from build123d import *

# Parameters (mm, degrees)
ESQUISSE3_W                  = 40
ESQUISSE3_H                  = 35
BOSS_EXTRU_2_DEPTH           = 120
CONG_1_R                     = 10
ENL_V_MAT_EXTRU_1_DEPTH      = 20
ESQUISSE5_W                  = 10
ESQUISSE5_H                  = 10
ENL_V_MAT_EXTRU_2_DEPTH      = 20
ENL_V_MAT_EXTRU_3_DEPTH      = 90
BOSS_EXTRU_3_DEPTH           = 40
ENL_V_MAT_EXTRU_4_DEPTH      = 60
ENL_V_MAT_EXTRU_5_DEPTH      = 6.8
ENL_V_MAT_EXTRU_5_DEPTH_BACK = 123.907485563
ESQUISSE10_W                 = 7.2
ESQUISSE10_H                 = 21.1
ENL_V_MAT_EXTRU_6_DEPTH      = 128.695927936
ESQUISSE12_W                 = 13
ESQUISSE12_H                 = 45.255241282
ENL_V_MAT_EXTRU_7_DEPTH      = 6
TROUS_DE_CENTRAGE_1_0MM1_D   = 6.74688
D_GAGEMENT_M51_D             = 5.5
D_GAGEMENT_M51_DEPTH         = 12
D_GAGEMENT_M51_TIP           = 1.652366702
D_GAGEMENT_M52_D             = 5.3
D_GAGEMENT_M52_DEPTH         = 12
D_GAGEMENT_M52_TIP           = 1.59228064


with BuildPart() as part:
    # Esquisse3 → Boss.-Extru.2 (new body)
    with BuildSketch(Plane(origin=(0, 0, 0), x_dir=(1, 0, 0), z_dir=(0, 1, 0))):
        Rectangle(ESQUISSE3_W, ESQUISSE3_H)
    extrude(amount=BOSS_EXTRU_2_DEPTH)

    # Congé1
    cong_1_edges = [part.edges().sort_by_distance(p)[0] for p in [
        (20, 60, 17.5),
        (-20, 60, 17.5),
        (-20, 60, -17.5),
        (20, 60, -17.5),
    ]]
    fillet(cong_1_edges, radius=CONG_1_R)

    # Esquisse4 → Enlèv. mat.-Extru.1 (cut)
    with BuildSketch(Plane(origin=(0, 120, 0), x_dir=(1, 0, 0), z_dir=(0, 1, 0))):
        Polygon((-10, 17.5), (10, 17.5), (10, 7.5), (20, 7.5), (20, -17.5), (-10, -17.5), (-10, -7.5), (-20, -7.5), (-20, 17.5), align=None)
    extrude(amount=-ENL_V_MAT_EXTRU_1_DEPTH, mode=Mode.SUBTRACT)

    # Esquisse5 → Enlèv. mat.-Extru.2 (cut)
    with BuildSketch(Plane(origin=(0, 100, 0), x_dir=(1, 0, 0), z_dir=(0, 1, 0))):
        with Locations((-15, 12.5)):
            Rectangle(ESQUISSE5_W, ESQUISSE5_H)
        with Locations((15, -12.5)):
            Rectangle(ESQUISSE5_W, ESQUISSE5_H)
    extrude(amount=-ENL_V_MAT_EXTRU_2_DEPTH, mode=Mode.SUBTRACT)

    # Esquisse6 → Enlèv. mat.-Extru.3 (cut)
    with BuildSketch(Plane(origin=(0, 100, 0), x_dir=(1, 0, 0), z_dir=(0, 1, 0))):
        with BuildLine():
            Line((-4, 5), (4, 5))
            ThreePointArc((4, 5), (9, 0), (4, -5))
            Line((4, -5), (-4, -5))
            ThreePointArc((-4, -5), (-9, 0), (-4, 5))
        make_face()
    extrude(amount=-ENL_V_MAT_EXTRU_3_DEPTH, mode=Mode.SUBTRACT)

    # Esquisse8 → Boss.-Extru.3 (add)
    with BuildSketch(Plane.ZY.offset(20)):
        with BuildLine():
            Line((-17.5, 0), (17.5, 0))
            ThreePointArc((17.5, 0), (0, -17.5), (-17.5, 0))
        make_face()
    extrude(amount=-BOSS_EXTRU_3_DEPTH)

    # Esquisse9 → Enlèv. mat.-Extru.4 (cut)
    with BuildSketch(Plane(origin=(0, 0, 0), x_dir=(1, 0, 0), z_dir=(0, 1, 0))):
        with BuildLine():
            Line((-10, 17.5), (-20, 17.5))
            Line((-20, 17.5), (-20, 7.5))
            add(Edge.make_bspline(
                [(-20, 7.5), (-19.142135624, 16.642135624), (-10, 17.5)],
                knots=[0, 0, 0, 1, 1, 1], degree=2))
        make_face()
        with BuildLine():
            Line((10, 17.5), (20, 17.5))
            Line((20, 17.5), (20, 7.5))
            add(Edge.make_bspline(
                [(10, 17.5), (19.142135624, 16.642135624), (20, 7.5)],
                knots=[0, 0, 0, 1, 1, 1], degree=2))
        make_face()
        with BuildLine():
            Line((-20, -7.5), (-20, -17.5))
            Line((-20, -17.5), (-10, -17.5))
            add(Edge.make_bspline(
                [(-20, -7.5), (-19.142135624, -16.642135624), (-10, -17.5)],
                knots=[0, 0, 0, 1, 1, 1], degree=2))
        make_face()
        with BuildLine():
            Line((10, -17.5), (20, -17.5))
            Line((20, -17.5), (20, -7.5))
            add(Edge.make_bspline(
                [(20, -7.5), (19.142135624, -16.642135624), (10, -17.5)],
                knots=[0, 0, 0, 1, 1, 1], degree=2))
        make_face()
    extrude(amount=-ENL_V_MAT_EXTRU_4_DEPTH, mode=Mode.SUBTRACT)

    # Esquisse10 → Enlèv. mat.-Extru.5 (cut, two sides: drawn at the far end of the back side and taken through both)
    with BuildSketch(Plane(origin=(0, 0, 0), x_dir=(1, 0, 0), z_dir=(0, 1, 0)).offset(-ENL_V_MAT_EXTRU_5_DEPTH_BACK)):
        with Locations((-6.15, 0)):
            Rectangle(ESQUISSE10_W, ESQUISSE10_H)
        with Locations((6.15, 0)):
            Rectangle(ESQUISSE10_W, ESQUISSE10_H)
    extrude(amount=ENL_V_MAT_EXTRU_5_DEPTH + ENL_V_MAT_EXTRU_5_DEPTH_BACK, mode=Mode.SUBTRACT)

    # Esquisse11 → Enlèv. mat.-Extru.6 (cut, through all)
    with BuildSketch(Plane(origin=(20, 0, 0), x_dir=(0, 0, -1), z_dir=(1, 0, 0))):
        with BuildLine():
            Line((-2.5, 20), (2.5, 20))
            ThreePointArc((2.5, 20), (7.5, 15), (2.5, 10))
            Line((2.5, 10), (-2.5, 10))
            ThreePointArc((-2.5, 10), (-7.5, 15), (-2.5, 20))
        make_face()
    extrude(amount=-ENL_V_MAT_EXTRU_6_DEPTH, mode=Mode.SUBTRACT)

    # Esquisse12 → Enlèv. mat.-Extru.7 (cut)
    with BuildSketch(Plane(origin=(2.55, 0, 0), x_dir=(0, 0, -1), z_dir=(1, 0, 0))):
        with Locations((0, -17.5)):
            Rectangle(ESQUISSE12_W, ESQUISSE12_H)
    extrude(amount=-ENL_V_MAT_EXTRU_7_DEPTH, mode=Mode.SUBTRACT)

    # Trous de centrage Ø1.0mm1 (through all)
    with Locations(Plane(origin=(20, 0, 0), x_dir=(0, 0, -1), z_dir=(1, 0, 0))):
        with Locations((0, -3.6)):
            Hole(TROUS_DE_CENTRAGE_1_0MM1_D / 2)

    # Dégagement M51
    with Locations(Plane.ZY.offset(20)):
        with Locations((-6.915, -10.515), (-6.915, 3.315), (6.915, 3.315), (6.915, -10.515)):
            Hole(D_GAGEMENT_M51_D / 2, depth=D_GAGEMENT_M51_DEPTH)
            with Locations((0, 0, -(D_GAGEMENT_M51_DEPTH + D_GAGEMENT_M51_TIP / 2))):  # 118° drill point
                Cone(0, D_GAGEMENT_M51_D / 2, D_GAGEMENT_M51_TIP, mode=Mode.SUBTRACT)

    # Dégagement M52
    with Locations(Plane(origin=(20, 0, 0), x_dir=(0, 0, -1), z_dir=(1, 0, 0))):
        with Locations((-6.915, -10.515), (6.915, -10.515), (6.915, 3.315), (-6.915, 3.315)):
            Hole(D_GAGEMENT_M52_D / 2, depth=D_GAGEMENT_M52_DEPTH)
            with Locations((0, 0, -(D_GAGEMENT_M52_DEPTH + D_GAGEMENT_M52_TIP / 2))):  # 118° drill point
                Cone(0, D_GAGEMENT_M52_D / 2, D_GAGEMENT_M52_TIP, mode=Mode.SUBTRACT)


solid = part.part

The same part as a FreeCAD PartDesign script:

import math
import FreeCAD as App
import Part
import Sketcher
from FreeCAD import Vector
Q = App.Units.Quantity


def edges_at(feature, points):
    """Names of the edges that pass closest to the given points."""
    edges = feature.Shape.Edges
    near = lambda p: min(range(len(edges)), key=lambda i: edges[i].distToShape(Part.Vertex(*p))[0])
    return sorted({f"Edge{near(p) + 1}" for p in points})


def add_polygon(sketch, points):
    """Adds a closed chain of lines whose ends are joined by coincident constraints."""
    first, n = sketch.GeometryCount, len(points)
    for a, b in zip(points, points[1:] + points[:1]):
        sketch.addGeometry(Part.LineSegment(App.Vector(*a, 0), App.Vector(*b, 0)), False)
    for i in range(n):
        sketch.addConstraint(Sketcher.Constraint("Coincident", first + i, 2, first + (i + 1) % n, 1))

doc = App.newDocument("Part")
body = doc.addObject("PartDesign::Body", "Body")

# Sketch on XZ plane
sketch1 = body.newObject("Sketcher::SketchObject", "Sketch")
sketch1.AttachmentSupport = (doc.getObject("XZ_Plane"), [""])
sketch1.MapMode = "FlatFace"
add_polygon(sketch1, [(-20, -18), (-20, 18), (20, 18), (20, -18)])  # lines 0-3
sketch1.addConstraint(Sketcher.Constraint("Vertical", 0))
sketch1.addConstraint(Sketcher.Constraint("Horizontal", 1))
sketch1.addConstraint(Sketcher.Constraint("Vertical", 2))
sketch1.addConstraint(Sketcher.Constraint("Horizontal", 3))
sketch1.addConstraint(Sketcher.Constraint("Symmetric", 0, 2, 2, 2, -1, 1))
sketch1.addConstraint(Sketcher.Constraint("DistanceX", 1, 1, 1, 2, Q("40 mm")))
sketch1.addConstraint(Sketcher.Constraint("DistanceY", 0, 1, 0, 2, Q("35 mm")))
pad1 = body.newObject("PartDesign::Pad", "Pad")
pad1.Profile = sketch1
pad1.Length = 120
pad1.Reversed = True
doc.recompute()

fillet = body.newObject("PartDesign::Fillet", "Fillet")
fillet.Base = (pad1, edges_at(pad1, [
    (20, 60, 17.5),
    (-20, 60, 17.5),
    (-20, 60, -17.5),
    (20, 60, -17.5),
]))
fillet.Radius = 10

# Sketch on XZ plane
sketch2 = body.newObject("Sketcher::SketchObject", "Sketch001")
sketch2.AttachmentSupport = (doc.getObject("XZ_Plane"), [""])
sketch2.MapMode = "FlatFace"
sketch2.AttachmentOffset = App.Placement(Vector(0, 0, -120), App.Rotation())
add_polygon(sketch2, [(10, -18), (-20, -18), (-20, 8), (-10, 8), (-10, 18), (20, 18), (20, -8), (10, -8)])  # lines 0-7
sketch2.addConstraint(Sketcher.Constraint("Horizontal", 0))
sketch2.addConstraint(Sketcher.Constraint("Vertical", 1))
sketch2.addConstraint(Sketcher.Constraint("Horizontal", 2))
sketch2.addConstraint(Sketcher.Constraint("Vertical", 3))
sketch2.addConstraint(Sketcher.Constraint("Horizontal", 4))
sketch2.addConstraint(Sketcher.Constraint("Vertical", 5))
sketch2.addConstraint(Sketcher.Constraint("Horizontal", 6))
sketch2.addConstraint(Sketcher.Constraint("Vertical", 7))
sketch2.addConstraint(Sketcher.Constraint("Symmetric", 0, 2, 4, 2, -1, 1))
sketch2.addConstraint(Sketcher.Constraint("Symmetric", 2, 2, 6, 2, -1, 1))
sketch2.addConstraint(Sketcher.Constraint("Equal", 6, 3))
sketch2.addConstraint(Sketcher.Constraint("DistanceX", 0, 2, 0, 1, Q("30 mm")))
sketch2.addConstraint(Sketcher.Constraint("DistanceX", 2, 1, 2, 2, Q("10 mm")))
sketch2.addConstraint(Sketcher.Constraint("DistanceY", 1, 1, 1, 2, Q("25 mm")))
pocket1 = body.newObject("PartDesign::Pocket", "Pocket")
pocket1.Profile = sketch2
pocket1.Length = 20
pocket1.Reversed = True

# Sketch on XZ plane
sketch3 = body.newObject("Sketcher::SketchObject", "Sketch002")
sketch3.AttachmentSupport = (doc.getObject("XZ_Plane"), [""])
sketch3.MapMode = "FlatFace"
sketch3.AttachmentOffset = App.Placement(Vector(0, 0, -100), App.Rotation())
add_polygon(sketch3, [(-20, -18), (-20, -8), (-10, -8), (-10, -18)])  # lines 0-3
add_polygon(sketch3, [(10, 8), (10, 18), (20, 18), (20, 8)])  # lines 4-7
sketch3.addConstraint(Sketcher.Constraint("Vertical", 0))
sketch3.addConstraint(Sketcher.Constraint("Horizontal", 1))
sketch3.addConstraint(Sketcher.Constraint("Vertical", 2))
sketch3.addConstraint(Sketcher.Constraint("Horizontal", 3))
sketch3.addConstraint(Sketcher.Constraint("Vertical", 4))
sketch3.addConstraint(Sketcher.Constraint("Horizontal", 5))
sketch3.addConstraint(Sketcher.Constraint("Vertical", 6))
sketch3.addConstraint(Sketcher.Constraint("Horizontal", 7))
sketch3.addConstraint(Sketcher.Constraint("Symmetric", 2, 2, 4, 2, -1, 1))
sketch3.addConstraint(Sketcher.Constraint("Symmetric", 0, 2, 6, 2, -1, 1))
sketch3.addConstraint(Sketcher.Constraint("Equal", 7, 0))
sketch3.addConstraint(Sketcher.Constraint("DistanceX", 1, 1, 1, 2, Q("10 mm")))
sketch3.addConstraint(Sketcher.Constraint("DistanceX", 0, 2, -1, 1, Q("20 mm")))
sketch3.addConstraint(Sketcher.Constraint("DistanceY", 1, 2, 4, 2, Q("25 mm")))
pocket2 = body.newObject("PartDesign::Pocket", "Pocket001")
pocket2.Profile = sketch3
pocket2.Length = 20
pocket2.Reversed = True

# Sketch on XZ plane
sketch4 = body.newObject("Sketcher::SketchObject", "Sketch003")
sketch4.AttachmentSupport = (doc.getObject("XZ_Plane"), [""])
sketch4.MapMode = "FlatFace"
sketch4.AttachmentOffset = App.Placement(Vector(0, 0, -100), App.Rotation())
sketch4.addGeometry(Part.LineSegment(Vector(4, -5, 0), Vector(-4, -5, 0)), False)
sketch4.addGeometry(Part.ArcOfCircle(Part.Circle(Vector(-4, 0, 0), Vector(0, 0, 1), 5), math.radians(90), math.radians(270)), False)
sketch4.addGeometry(Part.LineSegment(Vector(-4, 5, 0), Vector(4, 5, 0)), False)
sketch4.addGeometry(Part.ArcOfCircle(Part.Circle(Vector(4, 0, 0), Vector(0, 0, 1), 5), math.radians(-90), math.radians(90)), False)
sketch4.addConstraint(Sketcher.Constraint("Tangent", 0, 2, 1, 2))
sketch4.addConstraint(Sketcher.Constraint("Tangent", 1, 1, 2, 1))
sketch4.addConstraint(Sketcher.Constraint("Tangent", 2, 2, 3, 2))
sketch4.addConstraint(Sketcher.Constraint("Tangent", 3, 1, 0, 1))
sketch4.addConstraint(Sketcher.Constraint("Horizontal", 0))
sketch4.addConstraint(Sketcher.Constraint("Horizontal", 2))
sketch4.addConstraint(Sketcher.Constraint("Symmetric", 1, 3, 3, 3, -1, 1))
sketch4.addConstraint(Sketcher.Constraint("Radius", 1, Q("5 mm")))
sketch4.addConstraint(Sketcher.Constraint("DistanceX", 0, 2, 0, 1, Q("8 mm")))
pocket3 = body.newObject("PartDesign::Pocket", "Pocket002")
pocket3.Profile = sketch4
pocket3.Length = 90
pocket3.Reversed = True

# Sketch on YZ plane
sketch5 = body.newObject("Sketcher::SketchObject", "Sketch004")
sketch5.AttachmentSupport = (doc.getObject("YZ_Plane"), [""])
sketch5.MapMode = "FlatFace"
sketch5.AttachmentOffset = App.Placement(Vector(0, 0, -20), App.Rotation())
sketch5.addGeometry(Part.LineSegment(Vector(0, 18, 0), Vector(0, -18, 0)), False)
sketch5.addGeometry(Part.ArcOfCircle(Part.Circle(Vector(0, 0, 0), Vector(0, 0, 1), 18), math.radians(90), math.radians(270)), False)
sketch5.addConstraint(Sketcher.Constraint("Coincident", 0, 1, 1, 1))
sketch5.addConstraint(Sketcher.Constraint("Coincident", 1, 2, 0, 2))
sketch5.addConstraint(Sketcher.Constraint("Vertical", 0))
sketch5.addConstraint(Sketcher.Constraint("Coincident", 1, 3, -1, 1))
sketch5.addConstraint(Sketcher.Constraint("PointOnObject", 0, 1, -2))
sketch5.addConstraint(Sketcher.Constraint("Radius", 1, Q("17.5 mm")))
pad2 = body.newObject("PartDesign::Pad", "Pad001")
pad2.Profile = sketch5
pad2.Length = 40

# Sketch on XZ plane
sketch6 = body.newObject("Sketcher::SketchObject", "Sketch005")
sketch6.AttachmentSupport = (doc.getObject("XZ_Plane"), [""])
sketch6.MapMode = "FlatFace"
sketch6.addGeometry(Part.LineSegment(Vector(-10, -17.5, 0), Vector(-20, -17.5, 0)), False)
sketch6.addGeometry(Part.LineSegment(Vector(-20, -17.5, 0), Vector(-20, -7.5, 0)), False)
sketch6.addGeometry(Part.BSplineCurve([Vector(-20, -7.5, 0), Vector(-19.142136, -16.642136, 0), Vector(-10, -17.5, 0)], [3, 3], [0, 1], False, 2, [1, 1, 1], False), False)
sketch6.addGeometry(Part.LineSegment(Vector(20, -17.5, 0), Vector(10, -17.5, 0)), False)
sketch6.addGeometry(Part.BSplineCurve([Vector(10, -17.5, 0), Vector(19.142136, -16.642136, 0), Vector(20, -7.5, 0)], [3, 3], [0, 1], False, 2, [1, 1, 1], False), False)
sketch6.addGeometry(Part.LineSegment(Vector(20, -7.5, 0), Vector(20, -17.5, 0)), False)
sketch6.addGeometry(Part.LineSegment(Vector(-20, 7.5, 0), Vector(-20, 17.5, 0)), False)
sketch6.addGeometry(Part.LineSegment(Vector(-20, 17.5, 0), Vector(-10, 17.5, 0)), False)
sketch6.addGeometry(Part.BSplineCurve([Vector(-20, 7.5, 0), Vector(-19.142136, 16.642136, 0), Vector(-10, 17.5, 0)], [3, 3], [0, 1], False, 2, [1, 1, 1], False), False)
sketch6.addGeometry(Part.LineSegment(Vector(10, 17.5, 0), Vector(20, 17.5, 0)), False)
sketch6.addGeometry(Part.LineSegment(Vector(20, 17.5, 0), Vector(20, 7.5, 0)), False)
sketch6.addGeometry(Part.BSplineCurve([Vector(20, 7.5, 0), Vector(19.142136, 16.642136, 0), Vector(10, 17.5, 0)], [3, 3], [0, 1], False, 2, [1, 1, 1], False), False)
sketch6.addConstraint(Sketcher.Constraint("Block", 2))
sketch6.addConstraint(Sketcher.Constraint("Block", 4))
sketch6.addConstraint(Sketcher.Constraint("Block", 8))
sketch6.addConstraint(Sketcher.Constraint("Block", 11))
sketch6.addConstraint(Sketcher.Constraint("Coincident", 0, 2, 1, 1))
sketch6.addConstraint(Sketcher.Constraint("Coincident", 1, 2, 2, 1))
sketch6.addConstraint(Sketcher.Constraint("Coincident", 2, 2, 0, 1))
sketch6.addConstraint(Sketcher.Constraint("Coincident", 3, 2, 4, 1))
sketch6.addConstraint(Sketcher.Constraint("Coincident", 4, 2, 5, 1))
sketch6.addConstraint(Sketcher.Constraint("Coincident", 5, 2, 3, 1))
sketch6.addConstraint(Sketcher.Constraint("Coincident", 6, 2, 7, 1))
sketch6.addConstraint(Sketcher.Constraint("Coincident", 7, 2, 8, 2))
sketch6.addConstraint(Sketcher.Constraint("Coincident", 8, 1, 6, 1))
sketch6.addConstraint(Sketcher.Constraint("Coincident", 9, 2, 10, 1))
sketch6.addConstraint(Sketcher.Constraint("Coincident", 10, 2, 11, 1))
sketch6.addConstraint(Sketcher.Constraint("Coincident", 11, 2, 9, 1))
sketch6.addConstraint(Sketcher.Constraint("Horizontal", 0))
sketch6.addConstraint(Sketcher.Constraint("Vertical", 1))
sketch6.addConstraint(Sketcher.Constraint("Horizontal", 3))
sketch6.addConstraint(Sketcher.Constraint("Vertical", 5))
sketch6.addConstraint(Sketcher.Constraint("Vertical", 6))
sketch6.addConstraint(Sketcher.Constraint("Horizontal", 7))
sketch6.addConstraint(Sketcher.Constraint("Horizontal", 9))
sketch6.addConstraint(Sketcher.Constraint("Vertical", 10))
pocket4 = body.newObject("PartDesign::Pocket", "Pocket003")
pocket4.Profile = sketch6
pocket4.Length = 60
pocket4.Reversed = True

# Sketch on XZ plane
sketch7 = body.newObject("Sketcher::SketchObject", "Sketch006")
sketch7.AttachmentSupport = (doc.getObject("XZ_Plane"), [""])
sketch7.MapMode = "FlatFace"
add_polygon(sketch7, [(-10, -11), (-10, 11), (-3, 11), (-3, -11)])  # lines 0-3
add_polygon(sketch7, [(3, -11), (3, 11), (10, 11), (10, -11)])  # lines 4-7
sketch7.addConstraint(Sketcher.Constraint("Vertical", 0))
sketch7.addConstraint(Sketcher.Constraint("Horizontal", 1))
sketch7.addConstraint(Sketcher.Constraint("Vertical", 2))
sketch7.addConstraint(Sketcher.Constraint("Horizontal", 3))
sketch7.addConstraint(Sketcher.Constraint("Vertical", 4))
sketch7.addConstraint(Sketcher.Constraint("Horizontal", 5))
sketch7.addConstraint(Sketcher.Constraint("Vertical", 6))
sketch7.addConstraint(Sketcher.Constraint("Horizontal", 7))
sketch7.addConstraint(Sketcher.Constraint("Symmetric", 2, 2, 4, 2, -1, 1))
sketch7.addConstraint(Sketcher.Constraint("Symmetric", 0, 2, 6, 2, -1, 1))
sketch7.addConstraint(Sketcher.Constraint("Horizontal", 1, 2, 4, 2))
sketch7.addConstraint(Sketcher.Constraint("DistanceX", 1, 1, 1, 2, Q("7.2 mm")))
sketch7.addConstraint(Sketcher.Constraint("DistanceY", 0, 1, 0, 2, Q("21.1 mm")))
sketch7.addConstraint(Sketcher.Constraint("DistanceX", 1, 2, 4, 2, Q("5.1 mm")))
pocket5 = body.newObject("PartDesign::Pocket", "Pocket004")
pocket5.Profile = sketch7
pocket5.Type = "TwoLengths"
pocket5.Length = 6.8
pocket5.Length2 = 123.907486

# Sketch on YZ plane
sketch8 = body.newObject("Sketcher::SketchObject", "Sketch007")
sketch8.AttachmentSupport = (doc.getObject("YZ_Plane"), [""])
sketch8.MapMode = "FlatFace"
sketch8.AttachmentOffset = App.Placement(Vector(0, 0, 20), App.Rotation())
sketch8.addGeometry(Part.LineSegment(Vector(20, -2, 0), Vector(20, 2, 0)), False)
sketch8.addGeometry(Part.ArcOfCircle(Part.Circle(Vector(15, 2, 0), Vector(0, 0, 1), 5), math.radians(0), math.radians(180)), False)
sketch8.addGeometry(Part.LineSegment(Vector(10, 2, 0), Vector(10, -2, 0)), False)
sketch8.addGeometry(Part.ArcOfCircle(Part.Circle(Vector(15, -2, 0), Vector(0, 0, 1), 5), math.radians(180), math.radians(360)), False)
sketch8.addConstraint(Sketcher.Constraint("Tangent", 0, 2, 1, 1))
sketch8.addConstraint(Sketcher.Constraint("Tangent", 1, 2, 2, 1))
sketch8.addConstraint(Sketcher.Constraint("Tangent", 2, 2, 3, 1))
sketch8.addConstraint(Sketcher.Constraint("Tangent", 3, 2, 0, 1))
sketch8.addConstraint(Sketcher.Constraint("Vertical", 0))
sketch8.addConstraint(Sketcher.Constraint("Vertical", 2))
sketch8.addConstraint(Sketcher.Constraint("Radius", 1, Q("5 mm")))
sketch8.addConstraint(Sketcher.Constraint("DistanceY", 0, 1, 0, 2, Q("5 mm")))
sketch8.addConstraint(Sketcher.Constraint("DistanceX", -1, 1, 1, 3, Q("15 mm")))
sketch8.addConstraint(Sketcher.Constraint("DistanceY", -1, 1, 1, 3, Q("2.5 mm")))
pocket6 = body.newObject("PartDesign::Pocket", "Pocket005")
pocket6.Profile = sketch8
pocket6.Type = "ThroughAll"

# Sketch on YZ plane
sketch9 = body.newObject("Sketcher::SketchObject", "Sketch008")
sketch9.AttachmentSupport = (doc.getObject("YZ_Plane"), [""])
sketch9.MapMode = "FlatFace"
sketch9.AttachmentOffset = App.Placement(Vector(0, 0, 2.55), App.Rotation())
add_polygon(sketch9, [(5, 6), (-40, 6), (-40, -6), (5, -6)])  # lines 0-3
sketch9.addConstraint(Sketcher.Constraint("Horizontal", 0))
sketch9.addConstraint(Sketcher.Constraint("Vertical", 1))
sketch9.addConstraint(Sketcher.Constraint("Horizontal", 2))
sketch9.addConstraint(Sketcher.Constraint("Vertical", 3))
sketch9.addConstraint(Sketcher.Constraint("DistanceY", 1, 2, 1, 1, Q("13 mm")))
sketch9.addConstraint(Sketcher.Constraint("DistanceY", -1, 1, 0, 2, Q("6.5 mm")))
sketch9.addConstraint(Sketcher.Constraint("DistanceX", 0, 2, 0, 1, Q("45.255241 mm")))
sketch9.addConstraint(Sketcher.Constraint("DistanceX", 0, 2, -1, 1, Q("40.127621 mm")))
pocket7 = body.newObject("PartDesign::Pocket", "Pocket006")
pocket7.Profile = sketch9
pocket7.Length = 6

# Sketch on YZ plane
sketch10 = body.newObject("Sketcher::SketchObject", "Sketch009")
sketch10.AttachmentSupport = (doc.getObject("YZ_Plane"), [""])
sketch10.MapMode = "FlatFace"
sketch10.AttachmentOffset = App.Placement(Vector(0, 0, 20), App.Rotation())
sketch10.addGeometry(Part.Circle(Vector(-3.6, 0, 0), Vector(0, 0, 1), 3.4), False)
sketch10.addConstraint(Sketcher.Constraint("PointOnObject", 0, 3, -1))
sketch10.addConstraint(Sketcher.Constraint("DistanceX", 0, 3, -1, 1, Q("3.6 mm")))
sketch10.addConstraint(Sketcher.Constraint("Diameter", 0, Q("6.74688 mm")))
doc.recompute()
hole = body.newObject("PartDesign::Hole", "Hole")
hole.Profile = sketch10
hole.ThreadType = "None"
hole.Diameter = 6.74688
hole.DepthType = "ThroughAll"

# Sketch on YZ plane
sketch11 = body.newObject("Sketcher::SketchObject", "Sketch010")
sketch11.AttachmentSupport = (doc.getObject("YZ_Plane"), [""])
sketch11.MapMode = "FlatFace"
sketch11.AttachmentOffset = App.Placement(Vector(0, 0, -20), App.Rotation())
sketch11.addGeometry(Part.Circle(Vector(-10.5, -6.9, 0), Vector(0, 0, 1), 2.8), False)
sketch11.addGeometry(Part.Circle(Vector(3.3, -6.9, 0), Vector(0, 0, 1), 2.8), False)
sketch11.addGeometry(Part.Circle(Vector(3.3, 6.9, 0), Vector(0, 0, 1), 2.8), False)
sketch11.addGeometry(Part.Circle(Vector(-10.5, 6.9, 0), Vector(0, 0, 1), 2.8), False)
sketch11.addConstraint(Sketcher.Constraint("Equal", 0, 1))
sketch11.addConstraint(Sketcher.Constraint("Equal", 1, 2))
sketch11.addConstraint(Sketcher.Constraint("Equal", 2, 3))
sketch11.addConstraint(Sketcher.Constraint("Symmetric", 1, 3, 2, 3, -1))
sketch11.addConstraint(Sketcher.Constraint("Symmetric", 0, 3, 3, 3, -1))
sketch11.addConstraint(Sketcher.Constraint("Horizontal", 0, 3, 1, 3))
sketch11.addConstraint(Sketcher.Constraint("Diameter", 0, Q("5.5 mm")))
sketch11.addConstraint(Sketcher.Constraint("DistanceX", 0, 3, 1, 3, Q("13.83 mm")))
sketch11.addConstraint(Sketcher.Constraint("DistanceY", 1, 3, 2, 3, Q("13.83 mm")))
sketch11.addConstraint(Sketcher.Constraint("DistanceX", 0, 3, -1, 1, Q("10.515 mm")))
doc.recompute()
hole2 = body.newObject("PartDesign::Hole", "Hole001")
hole2.Profile = sketch11
hole2.ThreadType = "None"
hole2.Diameter = 5.5
hole2.DepthType = "Dimension"
hole2.Depth = 12
hole2.DrillPoint = "Angled"
hole2.DrillPointAngle = 118
hole2.Reversed = True

# Sketch on YZ plane
sketch12 = body.newObject("Sketcher::SketchObject", "Sketch011")
sketch12.AttachmentSupport = (doc.getObject("YZ_Plane"), [""])
sketch12.MapMode = "FlatFace"
sketch12.AttachmentOffset = App.Placement(Vector(0, 0, 20), App.Rotation())
sketch12.addGeometry(Part.Circle(Vector(-10.5, 6.9, 0), Vector(0, 0, 1), 2.6), False)
sketch12.addGeometry(Part.Circle(Vector(-10.5, -6.9, 0), Vector(0, 0, 1), 2.6), False)
sketch12.addGeometry(Part.Circle(Vector(3.3, -6.9, 0), Vector(0, 0, 1), 2.6), False)
sketch12.addGeometry(Part.Circle(Vector(3.3, 6.9, 0), Vector(0, 0, 1), 2.6), False)
sketch12.addConstraint(Sketcher.Constraint("Equal", 0, 1))
sketch12.addConstraint(Sketcher.Constraint("Equal", 1, 2))
sketch12.addConstraint(Sketcher.Constraint("Equal", 2, 3))
sketch12.addConstraint(Sketcher.Constraint("Symmetric", 0, 3, 1, 3, -1))
sketch12.addConstraint(Sketcher.Constraint("Symmetric", 2, 3, 3, 3, -1))
sketch12.addConstraint(Sketcher.Constraint("Horizontal", 1, 3, 2, 3))
sketch12.addConstraint(Sketcher.Constraint("Diameter", 0, Q("5.3 mm")))
sketch12.addConstraint(Sketcher.Constraint("DistanceY", 1, 3, 0, 3, Q("13.83 mm")))
sketch12.addConstraint(Sketcher.Constraint("DistanceX", 1, 3, 2, 3, Q("13.83 mm")))
sketch12.addConstraint(Sketcher.Constraint("DistanceX", 0, 3, -1, 1, Q("10.515 mm")))
doc.recompute()
hole3 = body.newObject("PartDesign::Hole", "Hole002")
hole3.Profile = sketch12
hole3.ThreadType = "None"
hole3.Diameter = 5.3
hole3.DepthType = "Dimension"
hole3.Depth = 12
hole3.DrillPoint = "Angled"
hole3.DrillPointAngle = 118

doc.recompute()
